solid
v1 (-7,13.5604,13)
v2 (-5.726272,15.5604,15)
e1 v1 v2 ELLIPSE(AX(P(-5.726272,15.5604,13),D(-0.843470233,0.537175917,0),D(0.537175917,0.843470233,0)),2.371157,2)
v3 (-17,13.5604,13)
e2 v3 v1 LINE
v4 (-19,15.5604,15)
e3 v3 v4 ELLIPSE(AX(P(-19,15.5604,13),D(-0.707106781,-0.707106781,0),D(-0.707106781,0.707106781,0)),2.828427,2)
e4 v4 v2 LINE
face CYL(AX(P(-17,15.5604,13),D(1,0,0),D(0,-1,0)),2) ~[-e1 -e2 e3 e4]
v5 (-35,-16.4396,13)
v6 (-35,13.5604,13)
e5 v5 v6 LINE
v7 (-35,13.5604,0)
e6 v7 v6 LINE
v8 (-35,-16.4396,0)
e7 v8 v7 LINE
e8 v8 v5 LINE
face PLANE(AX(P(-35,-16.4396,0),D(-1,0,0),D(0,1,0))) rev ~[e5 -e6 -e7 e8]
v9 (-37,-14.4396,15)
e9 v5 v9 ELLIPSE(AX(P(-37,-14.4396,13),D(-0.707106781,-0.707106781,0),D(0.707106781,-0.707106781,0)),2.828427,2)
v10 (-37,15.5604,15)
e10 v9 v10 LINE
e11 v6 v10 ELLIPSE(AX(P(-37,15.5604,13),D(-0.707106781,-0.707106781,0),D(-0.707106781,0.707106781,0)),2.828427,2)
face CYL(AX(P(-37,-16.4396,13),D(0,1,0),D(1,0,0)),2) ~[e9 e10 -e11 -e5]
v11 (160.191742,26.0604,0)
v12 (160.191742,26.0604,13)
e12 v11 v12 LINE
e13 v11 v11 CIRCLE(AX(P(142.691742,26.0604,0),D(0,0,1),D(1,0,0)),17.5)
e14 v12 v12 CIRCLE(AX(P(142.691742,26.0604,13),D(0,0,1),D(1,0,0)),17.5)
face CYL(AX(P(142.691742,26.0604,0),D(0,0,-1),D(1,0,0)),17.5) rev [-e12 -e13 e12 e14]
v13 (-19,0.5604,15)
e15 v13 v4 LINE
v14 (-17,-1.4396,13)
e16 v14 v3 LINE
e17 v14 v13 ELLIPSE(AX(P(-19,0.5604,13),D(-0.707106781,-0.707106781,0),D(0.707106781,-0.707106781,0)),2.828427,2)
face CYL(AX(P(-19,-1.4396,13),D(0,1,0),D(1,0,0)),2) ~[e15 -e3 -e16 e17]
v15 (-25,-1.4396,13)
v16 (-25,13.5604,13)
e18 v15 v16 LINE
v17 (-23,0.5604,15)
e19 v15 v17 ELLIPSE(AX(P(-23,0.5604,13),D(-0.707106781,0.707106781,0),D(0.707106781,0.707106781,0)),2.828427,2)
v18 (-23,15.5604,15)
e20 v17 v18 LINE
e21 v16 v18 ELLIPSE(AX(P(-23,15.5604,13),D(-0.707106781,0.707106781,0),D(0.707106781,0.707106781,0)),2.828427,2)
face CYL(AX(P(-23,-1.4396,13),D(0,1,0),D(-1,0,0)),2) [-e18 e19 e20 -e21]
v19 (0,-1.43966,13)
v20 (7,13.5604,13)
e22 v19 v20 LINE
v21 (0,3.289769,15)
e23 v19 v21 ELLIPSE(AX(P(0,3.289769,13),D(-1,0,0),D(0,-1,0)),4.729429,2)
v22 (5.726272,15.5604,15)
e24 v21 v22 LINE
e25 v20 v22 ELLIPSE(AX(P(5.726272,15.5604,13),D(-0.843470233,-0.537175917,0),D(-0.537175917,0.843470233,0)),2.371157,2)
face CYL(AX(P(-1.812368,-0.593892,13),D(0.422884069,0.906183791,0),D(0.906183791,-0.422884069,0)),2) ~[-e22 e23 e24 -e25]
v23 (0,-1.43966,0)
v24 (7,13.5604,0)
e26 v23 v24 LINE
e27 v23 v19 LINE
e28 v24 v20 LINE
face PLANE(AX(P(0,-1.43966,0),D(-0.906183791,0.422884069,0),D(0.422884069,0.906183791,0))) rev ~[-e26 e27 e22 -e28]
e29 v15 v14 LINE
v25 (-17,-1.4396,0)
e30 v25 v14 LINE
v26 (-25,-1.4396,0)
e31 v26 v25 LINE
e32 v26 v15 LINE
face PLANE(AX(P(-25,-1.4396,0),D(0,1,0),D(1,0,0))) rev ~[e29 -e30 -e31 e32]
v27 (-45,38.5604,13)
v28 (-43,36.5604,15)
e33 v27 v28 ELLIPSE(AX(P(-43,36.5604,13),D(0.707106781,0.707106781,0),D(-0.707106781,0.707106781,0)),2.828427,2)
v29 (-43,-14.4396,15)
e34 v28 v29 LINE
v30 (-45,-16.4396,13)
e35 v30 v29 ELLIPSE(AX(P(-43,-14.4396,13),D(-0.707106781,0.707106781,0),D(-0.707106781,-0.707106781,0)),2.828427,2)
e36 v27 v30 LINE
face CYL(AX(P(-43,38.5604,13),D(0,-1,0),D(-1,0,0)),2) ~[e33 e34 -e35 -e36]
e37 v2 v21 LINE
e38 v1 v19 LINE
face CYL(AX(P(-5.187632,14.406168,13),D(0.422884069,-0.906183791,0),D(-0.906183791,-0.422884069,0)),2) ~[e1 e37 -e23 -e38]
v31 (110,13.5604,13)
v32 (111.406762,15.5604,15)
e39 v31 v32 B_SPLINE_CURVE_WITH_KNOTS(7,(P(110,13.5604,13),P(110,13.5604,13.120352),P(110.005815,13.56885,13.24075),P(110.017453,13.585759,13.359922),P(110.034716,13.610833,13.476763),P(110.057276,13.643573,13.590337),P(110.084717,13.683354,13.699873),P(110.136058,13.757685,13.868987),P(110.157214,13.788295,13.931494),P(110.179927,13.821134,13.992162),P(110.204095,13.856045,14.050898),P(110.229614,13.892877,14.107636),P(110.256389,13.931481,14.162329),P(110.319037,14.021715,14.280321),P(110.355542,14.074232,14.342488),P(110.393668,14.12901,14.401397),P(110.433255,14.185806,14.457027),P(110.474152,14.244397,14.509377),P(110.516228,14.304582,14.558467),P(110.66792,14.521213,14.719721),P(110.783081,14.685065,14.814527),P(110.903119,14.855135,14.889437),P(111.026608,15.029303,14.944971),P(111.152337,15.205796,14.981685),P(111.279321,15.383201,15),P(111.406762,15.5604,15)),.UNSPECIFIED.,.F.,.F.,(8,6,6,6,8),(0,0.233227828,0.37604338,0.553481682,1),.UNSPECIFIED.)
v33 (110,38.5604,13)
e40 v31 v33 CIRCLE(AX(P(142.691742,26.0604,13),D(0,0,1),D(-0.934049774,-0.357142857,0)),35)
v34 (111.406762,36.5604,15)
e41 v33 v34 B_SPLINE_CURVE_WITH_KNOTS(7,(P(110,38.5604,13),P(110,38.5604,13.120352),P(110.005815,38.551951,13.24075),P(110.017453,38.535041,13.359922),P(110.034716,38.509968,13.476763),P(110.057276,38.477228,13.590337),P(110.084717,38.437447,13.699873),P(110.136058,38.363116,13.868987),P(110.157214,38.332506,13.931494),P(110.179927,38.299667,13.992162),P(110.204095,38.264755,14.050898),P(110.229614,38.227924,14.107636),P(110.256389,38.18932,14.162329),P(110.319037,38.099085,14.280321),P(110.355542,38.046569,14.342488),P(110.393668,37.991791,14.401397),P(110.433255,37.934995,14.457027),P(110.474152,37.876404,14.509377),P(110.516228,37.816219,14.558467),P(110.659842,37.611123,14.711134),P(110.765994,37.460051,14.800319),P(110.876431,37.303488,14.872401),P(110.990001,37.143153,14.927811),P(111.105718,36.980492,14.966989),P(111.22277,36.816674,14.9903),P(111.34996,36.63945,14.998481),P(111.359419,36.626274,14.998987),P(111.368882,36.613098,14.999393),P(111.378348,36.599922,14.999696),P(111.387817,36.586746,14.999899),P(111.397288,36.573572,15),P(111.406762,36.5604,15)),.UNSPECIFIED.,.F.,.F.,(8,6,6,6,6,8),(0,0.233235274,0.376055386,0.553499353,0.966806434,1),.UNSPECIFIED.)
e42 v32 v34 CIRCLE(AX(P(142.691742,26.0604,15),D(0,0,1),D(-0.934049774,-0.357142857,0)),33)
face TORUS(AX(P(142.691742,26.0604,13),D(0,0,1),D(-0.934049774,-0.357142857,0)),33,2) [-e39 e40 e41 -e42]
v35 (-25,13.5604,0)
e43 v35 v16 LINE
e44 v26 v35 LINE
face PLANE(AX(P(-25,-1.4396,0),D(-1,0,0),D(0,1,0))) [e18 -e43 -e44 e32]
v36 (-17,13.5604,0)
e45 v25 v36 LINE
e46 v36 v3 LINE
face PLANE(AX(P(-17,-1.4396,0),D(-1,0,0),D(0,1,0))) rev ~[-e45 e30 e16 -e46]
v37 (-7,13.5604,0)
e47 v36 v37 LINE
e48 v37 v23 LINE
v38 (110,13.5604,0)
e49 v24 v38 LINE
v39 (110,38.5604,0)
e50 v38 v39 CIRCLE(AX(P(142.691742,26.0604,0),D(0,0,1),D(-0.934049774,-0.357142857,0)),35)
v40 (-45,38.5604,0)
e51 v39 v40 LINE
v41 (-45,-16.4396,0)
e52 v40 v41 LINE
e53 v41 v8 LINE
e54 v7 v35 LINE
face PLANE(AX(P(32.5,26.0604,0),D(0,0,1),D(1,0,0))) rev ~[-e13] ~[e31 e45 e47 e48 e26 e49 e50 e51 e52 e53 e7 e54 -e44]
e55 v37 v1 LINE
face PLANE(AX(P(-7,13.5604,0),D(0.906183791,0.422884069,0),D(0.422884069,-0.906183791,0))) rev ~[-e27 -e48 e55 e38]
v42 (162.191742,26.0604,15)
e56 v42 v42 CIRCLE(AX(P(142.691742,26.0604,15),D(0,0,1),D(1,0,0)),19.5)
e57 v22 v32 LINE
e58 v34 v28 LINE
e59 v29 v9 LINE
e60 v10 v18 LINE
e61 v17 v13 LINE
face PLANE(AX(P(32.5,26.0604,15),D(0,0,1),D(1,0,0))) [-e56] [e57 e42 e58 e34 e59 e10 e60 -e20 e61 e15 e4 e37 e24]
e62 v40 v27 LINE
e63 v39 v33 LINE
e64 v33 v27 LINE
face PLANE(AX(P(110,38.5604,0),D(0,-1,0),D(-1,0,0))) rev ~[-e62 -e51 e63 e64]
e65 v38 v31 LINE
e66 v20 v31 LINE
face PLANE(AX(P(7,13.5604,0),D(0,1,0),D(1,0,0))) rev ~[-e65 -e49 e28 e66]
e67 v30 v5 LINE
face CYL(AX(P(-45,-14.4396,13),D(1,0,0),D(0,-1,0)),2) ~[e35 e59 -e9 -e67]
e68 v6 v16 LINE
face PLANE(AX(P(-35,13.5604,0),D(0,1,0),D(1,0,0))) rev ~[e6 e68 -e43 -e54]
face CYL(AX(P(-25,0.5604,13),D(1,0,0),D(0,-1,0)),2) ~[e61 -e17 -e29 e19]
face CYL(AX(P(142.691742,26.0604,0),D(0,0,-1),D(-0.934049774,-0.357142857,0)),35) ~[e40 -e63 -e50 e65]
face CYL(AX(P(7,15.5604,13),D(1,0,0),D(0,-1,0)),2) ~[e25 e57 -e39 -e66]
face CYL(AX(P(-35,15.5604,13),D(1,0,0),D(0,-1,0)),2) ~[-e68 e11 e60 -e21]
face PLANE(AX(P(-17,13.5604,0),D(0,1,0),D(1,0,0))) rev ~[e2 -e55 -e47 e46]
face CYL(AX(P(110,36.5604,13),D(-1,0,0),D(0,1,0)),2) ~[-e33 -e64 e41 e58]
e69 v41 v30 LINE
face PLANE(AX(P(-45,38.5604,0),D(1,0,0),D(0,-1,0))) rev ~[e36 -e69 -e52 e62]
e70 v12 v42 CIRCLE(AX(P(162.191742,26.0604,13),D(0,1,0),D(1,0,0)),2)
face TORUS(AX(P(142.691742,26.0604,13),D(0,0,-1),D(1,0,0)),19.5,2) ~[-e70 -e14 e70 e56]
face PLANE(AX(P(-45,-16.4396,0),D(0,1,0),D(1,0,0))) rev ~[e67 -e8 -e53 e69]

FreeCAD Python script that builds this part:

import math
import FreeCAD as App
import Part
import Sketcher
from FreeCAD import Vector


def edges_at(feature, points):
    """Names of the edges that pass closest to the given points."""
    edges = feature.Shape.Edges
    near = lambda p: min(range(len(edges)), key=lambda i: edges[i].distToShape(Part.Vertex(*p))[0])
    return sorted({f"Edge{near(p) + 1}" for p in points})

doc = App.newDocument("Part")
body = doc.addObject("PartDesign::Body", "Body")

sketch1 = body.newObject("Sketcher::SketchObject", "Sketch")
sketch1.AttachmentSupport = (doc.getObject("XY_Plane"), [""])
sketch1.MapMode = "FlatFace"
sketch1.addGeometry([
    Part.LineSegment(Vector(110, 39, 0), Vector(-45, 39, 0)),
    Part.LineSegment(Vector(-45, 39, 0), Vector(-45, -16, 0)),
    Part.LineSegment(Vector(-45, -16, 0), Vector(-35, -16, 0)),
    Part.LineSegment(Vector(-35, -16, 0), Vector(-35, 14, 0)),
    Part.LineSegment(Vector(-35, 14, 0), Vector(-25, 14, 0)),
    Part.LineSegment(Vector(-25, 14, 0), Vector(-25, -1, 0)),
    Part.LineSegment(Vector(-25, -1, 0), Vector(-17, -1, 0)),
    Part.LineSegment(Vector(-17, -1, 0), Vector(-17, 14, 0)),
    Part.LineSegment(Vector(-17, 14, 0), Vector(-7, 14, 0)),
    Part.LineSegment(Vector(-7, 14, 0), Vector(0, -1, 0)),
    Part.LineSegment(Vector(0, -1, 0), Vector(7, 14, 0)),
    Part.LineSegment(Vector(7, 14, 0), Vector(110, 14, 0)),
    Part.ArcOfCircle(Part.Circle(Vector(143, 26, 0), Vector(0, 0, 1), 35), math.radians(-159), math.radians(159)),
    Part.Circle(Vector(143, 26, 0), Vector(0, 0, 1), 18),
], False)
sketch1.addConstraint([
    Sketcher.Constraint("Coincident", 0, 2, 1, 1),
    Sketcher.Constraint("Coincident", 1, 2, 2, 1),
    Sketcher.Constraint("Coincident", 2, 2, 3, 1),
    Sketcher.Constraint("Coincident", 3, 2, 4, 1),
    Sketcher.Constraint("Coincident", 4, 2, 5, 1),
    Sketcher.Constraint("Coincident", 5, 2, 6, 1),
    Sketcher.Constraint("Coincident", 6, 2, 7, 1),
    Sketcher.Constraint("Coincident", 7, 2, 8, 1),
    Sketcher.Constraint("Coincident", 8, 2, 9, 1),
    Sketcher.Constraint("Coincident", 9, 2, 10, 1),
    Sketcher.Constraint("Coincident", 10, 2, 11, 1),
    Sketcher.Constraint("Coincident", 11, 2, 12, 1),
    Sketcher.Constraint("Coincident", 12, 2, 0, 1),
    Sketcher.Constraint("Horizontal", 0),
    Sketcher.Constraint("Vertical", 1),
    Sketcher.Constraint("Horizontal", 2),
    Sketcher.Constraint("Vertical", 3),
    Sketcher.Constraint("Horizontal", 4),
    Sketcher.Constraint("Vertical", 5),
    Sketcher.Constraint("Horizontal", 6),
    Sketcher.Constraint("Vertical", 7),
    Sketcher.Constraint("Horizontal", 8),
    Sketcher.Constraint("Horizontal", 11),
    Sketcher.Constraint("Coincident", 13, 3, 12, 3),
    Sketcher.Constraint("Symmetric", 8, 2, 10, 2, -2),
    Sketcher.Constraint("PointOnObject", 9, 2, -2),
    Sketcher.Constraint("Horizontal", 4, 2, 7, 2),
    Sketcher.Constraint("Vertical", 11, 2, 12, 2),
    Sketcher.Constraint("Equal", 2, 4),
    Sketcher.Constraint("Equal", 4, 8),
    Sketcher.Constraint("Diameter", 13, 35.0),
    Sketcher.Constraint("Radius", 12, 35.0),
    Sketcher.Constraint("DistanceX", 0, 2, 0, 1, 155.0),
    Sketcher.Constraint("DistanceX", 2, 1, 2, 2, 10.0),
    Sketcher.Constraint("DistanceX", 6, 1, 6, 2, 8.0),
    Sketcher.Constraint("DistanceX", 11, 1, 11, 2, 103.0),
    Sketcher.Constraint("DistanceY", 1, 2, 1, 1, 55.0),
    Sketcher.Constraint("DistanceY", 3, 1, 3, 2, 30.0),
    Sketcher.Constraint("DistanceY", 5, 2, 5, 1, 15.0),
    Sketcher.Constraint("Distance", 9, 16.553),
    Sketcher.Constraint("DistanceY", -1, 1, 12, 3, 26.0604),
])
pad1 = body.newObject("PartDesign::Pad", "Pad")
pad1.Profile = sketch1
pad1.Length = 15
doc.recompute()

fillet = body.newObject("PartDesign::Fillet", "Fillet")
fillet.Base = (pad1, edges_at(pad1, [
    (32.5, 38.56, 15),
    (-45, 11.06, 15),
    (-40, -16.44, 15),
    (-35, -1.44, 15),
    (-30, 13.56, 15),
    (-25, 6.06, 15),
    (-21, -1.44, 15),
    (-17, 6.06, 15),
    (-12, 13.56, 15),
    (-3.5, 6.06, 15),
    (3.5, 6.06, 15),
    (58.5, 13.56, 15),
    (177.692, 26.06, 15),
    (125.192, 26.06, 15),
]))
fillet.Radius = 2

doc.recompute()
